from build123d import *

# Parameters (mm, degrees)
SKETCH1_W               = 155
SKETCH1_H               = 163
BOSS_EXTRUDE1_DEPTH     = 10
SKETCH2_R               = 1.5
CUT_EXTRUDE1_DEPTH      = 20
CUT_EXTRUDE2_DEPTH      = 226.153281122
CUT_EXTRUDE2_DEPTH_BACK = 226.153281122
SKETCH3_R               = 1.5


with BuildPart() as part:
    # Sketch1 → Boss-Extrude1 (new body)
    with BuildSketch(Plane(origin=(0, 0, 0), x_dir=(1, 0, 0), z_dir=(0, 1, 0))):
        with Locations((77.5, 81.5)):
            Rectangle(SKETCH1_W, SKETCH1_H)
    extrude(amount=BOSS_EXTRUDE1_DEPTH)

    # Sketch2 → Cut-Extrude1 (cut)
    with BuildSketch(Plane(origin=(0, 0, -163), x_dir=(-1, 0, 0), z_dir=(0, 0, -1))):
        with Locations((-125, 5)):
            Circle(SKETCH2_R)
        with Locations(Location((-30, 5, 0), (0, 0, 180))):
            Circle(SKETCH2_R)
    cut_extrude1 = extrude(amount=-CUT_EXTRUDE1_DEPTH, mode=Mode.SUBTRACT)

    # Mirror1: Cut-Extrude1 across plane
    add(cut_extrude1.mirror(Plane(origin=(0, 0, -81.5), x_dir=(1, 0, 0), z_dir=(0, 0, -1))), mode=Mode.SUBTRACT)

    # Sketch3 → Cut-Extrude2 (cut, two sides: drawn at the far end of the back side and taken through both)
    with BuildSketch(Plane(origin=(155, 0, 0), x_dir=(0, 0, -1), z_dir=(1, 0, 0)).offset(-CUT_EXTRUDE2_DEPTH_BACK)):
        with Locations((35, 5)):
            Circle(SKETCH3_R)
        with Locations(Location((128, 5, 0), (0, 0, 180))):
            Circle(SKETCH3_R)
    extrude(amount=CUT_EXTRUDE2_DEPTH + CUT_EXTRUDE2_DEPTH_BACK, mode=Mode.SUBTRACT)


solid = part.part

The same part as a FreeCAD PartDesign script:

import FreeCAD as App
import Part
import Sketcher
from FreeCAD import Vector
Q = App.Units.Quantity


def add_polygon(sketch, points):
    """Adds a closed chain of lines whose ends are joined by coincident constraints."""
    first, n = sketch.GeometryCount, len(points)
    for a, b in zip(points, points[1:] + points[:1]):
        sketch.addGeometry(Part.LineSegment(App.Vector(*a, 0), App.Vector(*b, 0)), False)
    for i in range(n):
        sketch.addConstraint(Sketcher.Constraint("Coincident", first + i, 2, first + (i + 1) % n, 1))

doc = App.newDocument("Part")
body = doc.addObject("PartDesign::Body", "Body")

# Sketch on XZ plane
sketch1 = body.newObject("Sketcher::SketchObject", "Sketch")
sketch1.AttachmentSupport = (doc.getObject("XZ_Plane"), [""])
sketch1.MapMode = "FlatFace"
add_polygon(sketch1, [(0, -163), (0, 0), (155, 0), (155, -163)])  # lines 0-3
sketch1.addConstraint(Sketcher.Constraint("Vertical", 0))
sketch1.addConstraint(Sketcher.Constraint("Horizontal", 1))
sketch1.addConstraint(Sketcher.Constraint("Vertical", 2))
sketch1.addConstraint(Sketcher.Constraint("Horizontal", 3))
sketch1.addConstraint(Sketcher.Constraint("Coincident", 0, 2, -1, 1))
sketch1.addConstraint(Sketcher.Constraint("DistanceX", 1, 1, 1, 2, Q("155 mm")))
sketch1.addConstraint(Sketcher.Constraint("DistanceY", 0, 1, 0, 2, Q("163 mm")))
pad1 = body.newObject("PartDesign::Pad", "Pad")
pad1.Profile = sketch1
pad1.Length = 10
pad1.Reversed = True

# Sketch on XY plane
sketch2 = body.newObject("Sketcher::SketchObject", "Sketch001")
sketch2.AttachmentSupport = (doc.getObject("XY_Plane"), [""])
sketch2.MapMode = "FlatFace"
sketch2.AttachmentOffset = App.Placement(Vector(0, 0, -163), App.Rotation())
sketch2.addGeometry(Part.Circle(Vector(125, 5, 0), Vector(0, 0, 1), 1.5), False)
sketch2.addGeometry(Part.Circle(Vector(30, 5, 0), Vector(0, 0, 1), 1.5), False)
sketch2.addConstraint(Sketcher.Constraint("Equal", 0, 1))
sketch2.addConstraint(Sketcher.Constraint("Horizontal", 0, 3, 1, 3))
sketch2.addConstraint(Sketcher.Constraint("Diameter", 0, Q("3 mm")))
sketch2.addConstraint(Sketcher.Constraint("DistanceX", -1, 1, 0, 3, Q("125 mm")))
sketch2.addConstraint(Sketcher.Constraint("DistanceY", -1, 1, 0, 3, Q("5 mm")))
sketch2.addConstraint(Sketcher.Constraint("DistanceX", -1, 1, 1, 3, Q("30 mm")))
pocket1 = body.newObject("PartDesign::Pocket", "Pocket")
pocket1.Profile = sketch2
pocket1.Length = 20
pocket1.Reversed = True
doc.recompute()

datumplane = body.newObject("PartDesign::Plane", "DatumPlane")
datumplane.AttachmentSupport = (doc.getObject("XY_Plane"), [""])
datumplane.MapMode = "FlatFace"
datumplane.AttachmentOffset = App.Placement(Vector(0, 0, -81.5), App.Rotation())
mirrored = body.newObject("PartDesign::Mirrored", "Mirrored")
mirrored.Originals = [pocket1]
mirrored.MirrorPlane = (datumplane, [""])
body.Tip = mirrored

# Sketch on YZ plane
sketch3 = body.newObject("Sketcher::SketchObject", "Sketch002")
sketch3.AttachmentSupport = (doc.getObject("YZ_Plane"), [""])
sketch3.MapMode = "FlatFace"
sketch3.AttachmentOffset = App.Placement(Vector(0, 0, 155), App.Rotation())
sketch3.addGeometry(Part.Circle(Vector(5, -35, 0), Vector(0, 0, 1), 1.5), False)
sketch3.addGeometry(Part.Circle(Vector(5, -128, 0), Vector(0, 0, 1), 1.5), False)
sketch3.addConstraint(Sketcher.Constraint("Equal", 0, 1))
sketch3.addConstraint(Sketcher.Constraint("Vertical", 0, 3, 1, 3))
sketch3.addConstraint(Sketcher.Constraint("Diameter", 0, Q("3 mm")))
sketch3.addConstraint(Sketcher.Constraint("DistanceX", -1, 1, 0, 3, Q("5 mm")))
sketch3.addConstraint(Sketcher.Constraint("DistanceY", 0, 3, -1, 1, Q("35 mm")))
sketch3.addConstraint(Sketcher.Constraint("DistanceY", 1, 3, -1, 1, Q("128 mm")))
pocket2 = body.newObject("PartDesign::Pocket", "Pocket001")
pocket2.Profile = sketch3
pocket2.Type = "ThroughAll"
pocket2.Midplane = True

doc.recompute()
